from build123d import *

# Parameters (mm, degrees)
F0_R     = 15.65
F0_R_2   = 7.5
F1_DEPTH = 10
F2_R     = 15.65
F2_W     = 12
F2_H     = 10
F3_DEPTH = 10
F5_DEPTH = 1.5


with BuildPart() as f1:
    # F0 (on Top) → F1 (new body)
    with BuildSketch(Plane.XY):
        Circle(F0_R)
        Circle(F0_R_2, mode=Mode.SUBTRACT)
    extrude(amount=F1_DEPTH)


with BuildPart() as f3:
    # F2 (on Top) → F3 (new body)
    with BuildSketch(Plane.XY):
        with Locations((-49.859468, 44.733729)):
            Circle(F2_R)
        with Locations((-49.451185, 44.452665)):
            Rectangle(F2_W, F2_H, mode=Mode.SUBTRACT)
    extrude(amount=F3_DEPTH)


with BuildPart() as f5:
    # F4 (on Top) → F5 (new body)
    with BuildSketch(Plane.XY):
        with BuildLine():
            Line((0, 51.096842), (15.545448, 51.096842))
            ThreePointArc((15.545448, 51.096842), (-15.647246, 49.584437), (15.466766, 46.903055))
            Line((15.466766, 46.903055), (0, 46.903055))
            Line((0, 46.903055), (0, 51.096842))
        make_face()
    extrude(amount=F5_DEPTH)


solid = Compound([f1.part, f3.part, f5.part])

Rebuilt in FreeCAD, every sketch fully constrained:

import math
import FreeCAD as App
import Part
import Sketcher
from FreeCAD import Vector

doc = App.newDocument("Part")
params = doc.addObject("Spreadsheet::Sheet", "Params")
for row, (alias, value) in enumerate([
    ("sketch1_diameter", "15 mm"),
    ("sketch1_diameter2", "31.3 mm"),
    ("pad1_length", "10 mm"),
    ("sketch2_diameter", "31.3 mm"),
    ("sketch2_width", "12 mm"),
    ("sketch2_height", "10 mm"),
    ("pad2_length", "10 mm"),
    ("sketch3_radius", "15.65 mm"),
    ("pad3_length", "1.5 mm"),
], start=1):
    params.set(f"A{row}", alias)
    params.set(f"B{row}", "=" + value)
    params.setAlias(f"B{row}", alias)

body = doc.addObject("PartDesign::Body", "Body")

# Sketch on XY plane
sketch1 = body.newObject("Sketcher::SketchObject", "Sketch")
sketch1.AttachmentSupport = (doc.getObject("XY_Plane"), [""])
sketch1.MapMode = "FlatFace"
sketch1.addGeometry(Part.Circle(Vector(0, 0, 0), Vector(0, 0, 1), 15.65), False)
sketch1.addGeometry(Part.Circle(Vector(0, 0, 0), Vector(0, 0, 1), 7.5), False)
sketch1.addConstraint(Sketcher.Constraint("Coincident", 0, 3, -1, 1))
sketch1.addConstraint(Sketcher.Constraint("Coincident", 1, 3, -1, 1))
sketch1.addConstraint(Sketcher.Constraint("Diameter", 1, 15.0))
sketch1.addConstraint(Sketcher.Constraint("Diameter", 0, 31.3))
sketch1.setExpression("Constraints[2]", "Params.sketch1_diameter")
sketch1.setExpression("Constraints[3]", "Params.sketch1_diameter2")
pad1 = body.newObject("PartDesign::Pad", "Pad")
pad1.Profile = sketch1
pad1.setExpression("Length", "Params.pad1_length")
body2 = doc.addObject("PartDesign::Body", "Body001")

# Sketch on XY plane
sketch2 = body2.newObject("Sketcher::SketchObject", "Sketch001")
sketch2.AttachmentSupport = (doc.getObject("XY_Plane001"), [""])
sketch2.MapMode = "FlatFace"
sketch2.addGeometry(Part.Circle(Vector(-49.859468, 44.733729, 0), Vector(0, 0, 1), 15.65), False)
sketch2.addGeometry(Part.LineSegment(Vector(-43.451185, 39.452665, 0), Vector(-55.451185, 39.452665, 0)), False)
sketch2.addGeometry(Part.LineSegment(Vector(-55.451185, 39.452665, 0), Vector(-55.451185, 49.452665, 0)), False)
sketch2.addGeometry(Part.LineSegment(Vector(-55.451185, 49.452665, 0), Vector(-43.451185, 49.452665, 0)), False)
sketch2.addGeometry(Part.LineSegment(Vector(-43.451185, 49.452665, 0), Vector(-43.451185, 39.452665, 0)), False)
sketch2.addConstraint(Sketcher.Constraint("Coincident", 1, 2, 2, 1))
sketch2.addConstraint(Sketcher.Constraint("Coincident", 2, 2, 3, 1))
sketch2.addConstraint(Sketcher.Constraint("Coincident", 3, 2, 4, 1))
sketch2.addConstraint(Sketcher.Constraint("Coincident", 4, 2, 1, 1))
sketch2.addConstraint(Sketcher.Constraint("Horizontal", 1))
sketch2.addConstraint(Sketcher.Constraint("Vertical", 2))
sketch2.addConstraint(Sketcher.Constraint("Horizontal", 3))
sketch2.addConstraint(Sketcher.Constraint("Vertical", 4))
sketch2.addConstraint(Sketcher.Constraint("Diameter", 0, 31.3))
sketch2.addConstraint(Sketcher.Constraint("DistanceX", 1, 2, 1, 1, 12.0))
sketch2.addConstraint(Sketcher.Constraint("DistanceY", 2, 1, 2, 2, 10.0))
sketch2.addConstraint(Sketcher.Constraint("DistanceY", -1, 1, 0, 3, 44.733729))
sketch2.addConstraint(Sketcher.Constraint("DistanceX", 0, 3, -1, 1, 49.859468))
sketch2.addConstraint(Sketcher.Constraint("DistanceX", 1, 2, -1, 1, 55.451185))
sketch2.addConstraint(Sketcher.Constraint("DistanceY", -1, 1, 1, 2, 39.452665))
sketch2.setExpression("Constraints[8]", "Params.sketch2_diameter")
sketch2.setExpression("Constraints[9]", "Params.sketch2_width")
sketch2.setExpression("Constraints[10]", "Params.sketch2_height")
pad2 = body2.newObject("PartDesign::Pad", "Pad001")
pad2.Profile = sketch2
pad2.setExpression("Length", "Params.pad2_length")
body3 = doc.addObject("PartDesign::Body", "Body002")

# Sketch on XY plane
sketch3 = body3.newObject("Sketcher::SketchObject", "Sketch002")
sketch3.AttachmentSupport = (doc.getObject("XY_Plane002"), [""])
sketch3.MapMode = "FlatFace"
sketch3.addGeometry(Part.LineSegment(Vector(0, 51.096842, 0), Vector(15.545448, 51.096842, 0)), False)
sketch3.addGeometry(Part.ArcOfCircle(Part.Circle(Vector(0, 49.290867, 0), Vector(0, 0, 1), 15.65), math.radians(6.626567), math.radians(351.223768)), False)
sketch3.addGeometry(Part.LineSegment(Vector(15.466766, 46.903055, 0), Vector(0, 46.903055, 0)), False)
sketch3.addGeometry(Part.LineSegment(Vector(0, 46.903055, 0), Vector(0, 51.096842, 0)), False)
sketch3.addConstraint(Sketcher.Constraint("Coincident", 0, 2, 1, 1))
sketch3.addConstraint(Sketcher.Constraint("Coincident", 1, 2, 2, 1))
sketch3.addConstraint(Sketcher.Constraint("Coincident", 2, 2, 3, 1))
sketch3.addConstraint(Sketcher.Constraint("Coincident", 3, 2, 0, 1))
sketch3.addConstraint(Sketcher.Constraint("Horizontal", 0))
sketch3.addConstraint(Sketcher.Constraint("Horizontal", 2))
sketch3.addConstraint(Sketcher.Constraint("Vertical", 3))
sketch3.addConstraint(Sketcher.Constraint("PointOnObject", 1, 3, -2))
sketch3.addConstraint(Sketcher.Constraint("PointOnObject", 2, 2, -2))
sketch3.addConstraint(Sketcher.Constraint("Radius", 1, 15.65))
sketch3.addConstraint(Sketcher.Constraint("DistanceX", 0, 1, 0, 2, 15.545448))
sketch3.addConstraint(Sketcher.Constraint("DistanceX", 2, 2, 2, 1, 15.466766))
sketch3.addConstraint(Sketcher.Constraint("DistanceY", -1, 1, 1, 3, 49.290867))
sketch3.setExpression("Constraints[9]", "Params.sketch3_radius")
pad3 = body3.newObject("PartDesign::Pad", "Pad002")
pad3.Profile = sketch3
pad3.setExpression("Length", "Params.pad3_length")

doc.recompute()
